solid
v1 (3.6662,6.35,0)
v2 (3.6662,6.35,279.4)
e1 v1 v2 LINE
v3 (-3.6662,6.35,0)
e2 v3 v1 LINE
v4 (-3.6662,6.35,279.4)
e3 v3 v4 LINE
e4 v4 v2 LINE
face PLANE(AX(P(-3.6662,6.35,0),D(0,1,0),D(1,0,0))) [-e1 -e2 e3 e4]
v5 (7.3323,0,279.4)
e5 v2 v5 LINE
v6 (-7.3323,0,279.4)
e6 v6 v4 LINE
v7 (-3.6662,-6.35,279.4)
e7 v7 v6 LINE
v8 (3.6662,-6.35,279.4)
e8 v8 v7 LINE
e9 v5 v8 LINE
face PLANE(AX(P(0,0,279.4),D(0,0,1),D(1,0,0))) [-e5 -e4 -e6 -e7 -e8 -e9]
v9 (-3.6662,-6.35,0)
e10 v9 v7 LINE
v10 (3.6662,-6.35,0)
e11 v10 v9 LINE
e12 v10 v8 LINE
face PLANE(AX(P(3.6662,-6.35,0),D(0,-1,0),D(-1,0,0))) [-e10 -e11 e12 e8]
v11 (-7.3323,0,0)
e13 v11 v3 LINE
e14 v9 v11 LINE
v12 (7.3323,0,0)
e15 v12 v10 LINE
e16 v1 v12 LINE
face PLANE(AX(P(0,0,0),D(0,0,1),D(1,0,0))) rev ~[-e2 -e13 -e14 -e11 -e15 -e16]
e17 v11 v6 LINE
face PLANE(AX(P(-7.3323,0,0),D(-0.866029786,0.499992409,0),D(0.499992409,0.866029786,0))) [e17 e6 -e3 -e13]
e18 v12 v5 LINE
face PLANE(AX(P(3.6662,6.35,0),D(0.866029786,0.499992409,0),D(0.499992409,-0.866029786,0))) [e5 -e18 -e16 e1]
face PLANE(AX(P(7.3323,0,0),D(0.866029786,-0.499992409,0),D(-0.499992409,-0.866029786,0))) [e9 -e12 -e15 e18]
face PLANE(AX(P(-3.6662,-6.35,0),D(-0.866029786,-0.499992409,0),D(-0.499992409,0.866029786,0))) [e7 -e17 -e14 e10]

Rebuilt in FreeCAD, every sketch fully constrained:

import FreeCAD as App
import Part
import Sketcher
from FreeCAD import Vector
Q = App.Units.Quantity


def add_polygon(sketch, points):
    """Adds a closed chain of lines whose ends are joined by coincident constraints."""
    first, n = sketch.GeometryCount, len(points)
    for a, b in zip(points, points[1:] + points[:1]):
        sketch.addGeometry(Part.LineSegment(App.Vector(*a, 0), App.Vector(*b, 0)), False)
    for i in range(n):
        sketch.addConstraint(Sketcher.Constraint("Coincident", first + i, 2, first + (i + 1) % n, 1))

doc = App.newDocument("Part")
params = doc.addObject("Spreadsheet::Sheet", "Params")
for row, (alias, value) in enumerate([
    ("pad1_length", "11 in"),
], start=1):
    params.set(f"A{row}", alias)
    params.set(f"B{row}", "=" + value)
    params.setAlias(f"B{row}", alias)

body = doc.addObject("PartDesign::Body", "Body")

# Sketch on XY plane
sketch1 = doc.addObject("Sketcher::SketchObject", "Sketch")
body.addObject(sketch1)
sketch1.AttachmentSupport = (doc.XY_Plane, [""])
sketch1.MapMode = "FlatFace"
add_polygon(sketch1, [(7.3323, 0), (3.6662, 6.35), (-3.6662, 6.35), (-7.3323, 0), (-3.6662, -6.35), (3.6662, -6.35)])  # lines 0-5
sketch1.addConstraint([
    Sketcher.Constraint("Horizontal", 1),
    Sketcher.Constraint("Horizontal", 4),
    Sketcher.Constraint("Symmetric", 0, 2, 3, 2, -1, 1),
    Sketcher.Constraint("Symmetric", 2, 2, 5, 2, -1, 1),
    Sketcher.Constraint("PointOnObject", 2, 2, -1),
    Sketcher.Constraint("Parallel", 2, 5),
    Sketcher.Constraint("Vertical", 1, 2, 3, 2),
    Sketcher.Constraint("DistanceY", 3, 2, 1, 2, Q("0.5 in")),
    Sketcher.Constraint("Angle", 0, Q("119.9995 deg")),
    Sketcher.Constraint("DistanceX", 2, 2, 0, 2, Q("0.433 in")),
])
pad1 = doc.addObject("PartDesign::Pad", "Pad")
body.addObject(pad1)
pad1.Profile = sketch1
pad1.setExpression("Length", "Params.pad1_length")

doc.recompute()
